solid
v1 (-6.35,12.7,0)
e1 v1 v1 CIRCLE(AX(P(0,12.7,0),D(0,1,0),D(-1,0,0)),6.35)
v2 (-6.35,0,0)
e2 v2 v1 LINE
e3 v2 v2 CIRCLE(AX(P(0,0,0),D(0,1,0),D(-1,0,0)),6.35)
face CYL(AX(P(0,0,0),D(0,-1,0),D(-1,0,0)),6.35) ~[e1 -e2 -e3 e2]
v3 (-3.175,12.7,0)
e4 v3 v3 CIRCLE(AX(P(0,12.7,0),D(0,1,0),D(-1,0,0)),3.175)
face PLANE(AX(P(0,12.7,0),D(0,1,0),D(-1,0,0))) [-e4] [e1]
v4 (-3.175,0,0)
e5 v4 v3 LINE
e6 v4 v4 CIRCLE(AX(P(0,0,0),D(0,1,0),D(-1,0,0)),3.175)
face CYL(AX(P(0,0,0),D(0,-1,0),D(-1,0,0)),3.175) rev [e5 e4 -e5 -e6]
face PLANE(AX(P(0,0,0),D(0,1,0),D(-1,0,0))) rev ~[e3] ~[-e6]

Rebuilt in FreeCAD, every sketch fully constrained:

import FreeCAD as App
import Part
import Sketcher
from FreeCAD import Vector
Q = App.Units.Quantity

doc = App.newDocument("Part")
body = doc.addObject("PartDesign::Body", "Body")

# Sketch on XZ plane
sketch1 = doc.addObject("Sketcher::SketchObject", "Sketch")
body.addObject(sketch1)
sketch1.AttachmentSupport = (doc.XZ_Plane, [""])
sketch1.MapMode = "FlatFace"
sketch1.addGeometry(Part.Circle(Vector(0, 0, 0), Vector(0, 0, 1), 6.3), False)
sketch1.addGeometry(Part.Circle(Vector(0, 0, 0), Vector(0, 0, 1), 3.2), False)
sketch1.addConstraint(Sketcher.Constraint("Coincident", 0, 3, -1, 1))
sketch1.addConstraint(Sketcher.Constraint("Coincident", 1, 3, -1, 1))
sketch1.addConstraint(Sketcher.Constraint("Diameter", 0, Q("0.5 in")))
sketch1.addConstraint(Sketcher.Constraint("Diameter", 1, Q("0.25 in")))
pad1 = doc.addObject("PartDesign::Pad", "Pad")
body.addObject(pad1)
pad1.Profile = sketch1
pad1.Length = Q("0.5 in")
pad1.Reversed = True

doc.recompute()
